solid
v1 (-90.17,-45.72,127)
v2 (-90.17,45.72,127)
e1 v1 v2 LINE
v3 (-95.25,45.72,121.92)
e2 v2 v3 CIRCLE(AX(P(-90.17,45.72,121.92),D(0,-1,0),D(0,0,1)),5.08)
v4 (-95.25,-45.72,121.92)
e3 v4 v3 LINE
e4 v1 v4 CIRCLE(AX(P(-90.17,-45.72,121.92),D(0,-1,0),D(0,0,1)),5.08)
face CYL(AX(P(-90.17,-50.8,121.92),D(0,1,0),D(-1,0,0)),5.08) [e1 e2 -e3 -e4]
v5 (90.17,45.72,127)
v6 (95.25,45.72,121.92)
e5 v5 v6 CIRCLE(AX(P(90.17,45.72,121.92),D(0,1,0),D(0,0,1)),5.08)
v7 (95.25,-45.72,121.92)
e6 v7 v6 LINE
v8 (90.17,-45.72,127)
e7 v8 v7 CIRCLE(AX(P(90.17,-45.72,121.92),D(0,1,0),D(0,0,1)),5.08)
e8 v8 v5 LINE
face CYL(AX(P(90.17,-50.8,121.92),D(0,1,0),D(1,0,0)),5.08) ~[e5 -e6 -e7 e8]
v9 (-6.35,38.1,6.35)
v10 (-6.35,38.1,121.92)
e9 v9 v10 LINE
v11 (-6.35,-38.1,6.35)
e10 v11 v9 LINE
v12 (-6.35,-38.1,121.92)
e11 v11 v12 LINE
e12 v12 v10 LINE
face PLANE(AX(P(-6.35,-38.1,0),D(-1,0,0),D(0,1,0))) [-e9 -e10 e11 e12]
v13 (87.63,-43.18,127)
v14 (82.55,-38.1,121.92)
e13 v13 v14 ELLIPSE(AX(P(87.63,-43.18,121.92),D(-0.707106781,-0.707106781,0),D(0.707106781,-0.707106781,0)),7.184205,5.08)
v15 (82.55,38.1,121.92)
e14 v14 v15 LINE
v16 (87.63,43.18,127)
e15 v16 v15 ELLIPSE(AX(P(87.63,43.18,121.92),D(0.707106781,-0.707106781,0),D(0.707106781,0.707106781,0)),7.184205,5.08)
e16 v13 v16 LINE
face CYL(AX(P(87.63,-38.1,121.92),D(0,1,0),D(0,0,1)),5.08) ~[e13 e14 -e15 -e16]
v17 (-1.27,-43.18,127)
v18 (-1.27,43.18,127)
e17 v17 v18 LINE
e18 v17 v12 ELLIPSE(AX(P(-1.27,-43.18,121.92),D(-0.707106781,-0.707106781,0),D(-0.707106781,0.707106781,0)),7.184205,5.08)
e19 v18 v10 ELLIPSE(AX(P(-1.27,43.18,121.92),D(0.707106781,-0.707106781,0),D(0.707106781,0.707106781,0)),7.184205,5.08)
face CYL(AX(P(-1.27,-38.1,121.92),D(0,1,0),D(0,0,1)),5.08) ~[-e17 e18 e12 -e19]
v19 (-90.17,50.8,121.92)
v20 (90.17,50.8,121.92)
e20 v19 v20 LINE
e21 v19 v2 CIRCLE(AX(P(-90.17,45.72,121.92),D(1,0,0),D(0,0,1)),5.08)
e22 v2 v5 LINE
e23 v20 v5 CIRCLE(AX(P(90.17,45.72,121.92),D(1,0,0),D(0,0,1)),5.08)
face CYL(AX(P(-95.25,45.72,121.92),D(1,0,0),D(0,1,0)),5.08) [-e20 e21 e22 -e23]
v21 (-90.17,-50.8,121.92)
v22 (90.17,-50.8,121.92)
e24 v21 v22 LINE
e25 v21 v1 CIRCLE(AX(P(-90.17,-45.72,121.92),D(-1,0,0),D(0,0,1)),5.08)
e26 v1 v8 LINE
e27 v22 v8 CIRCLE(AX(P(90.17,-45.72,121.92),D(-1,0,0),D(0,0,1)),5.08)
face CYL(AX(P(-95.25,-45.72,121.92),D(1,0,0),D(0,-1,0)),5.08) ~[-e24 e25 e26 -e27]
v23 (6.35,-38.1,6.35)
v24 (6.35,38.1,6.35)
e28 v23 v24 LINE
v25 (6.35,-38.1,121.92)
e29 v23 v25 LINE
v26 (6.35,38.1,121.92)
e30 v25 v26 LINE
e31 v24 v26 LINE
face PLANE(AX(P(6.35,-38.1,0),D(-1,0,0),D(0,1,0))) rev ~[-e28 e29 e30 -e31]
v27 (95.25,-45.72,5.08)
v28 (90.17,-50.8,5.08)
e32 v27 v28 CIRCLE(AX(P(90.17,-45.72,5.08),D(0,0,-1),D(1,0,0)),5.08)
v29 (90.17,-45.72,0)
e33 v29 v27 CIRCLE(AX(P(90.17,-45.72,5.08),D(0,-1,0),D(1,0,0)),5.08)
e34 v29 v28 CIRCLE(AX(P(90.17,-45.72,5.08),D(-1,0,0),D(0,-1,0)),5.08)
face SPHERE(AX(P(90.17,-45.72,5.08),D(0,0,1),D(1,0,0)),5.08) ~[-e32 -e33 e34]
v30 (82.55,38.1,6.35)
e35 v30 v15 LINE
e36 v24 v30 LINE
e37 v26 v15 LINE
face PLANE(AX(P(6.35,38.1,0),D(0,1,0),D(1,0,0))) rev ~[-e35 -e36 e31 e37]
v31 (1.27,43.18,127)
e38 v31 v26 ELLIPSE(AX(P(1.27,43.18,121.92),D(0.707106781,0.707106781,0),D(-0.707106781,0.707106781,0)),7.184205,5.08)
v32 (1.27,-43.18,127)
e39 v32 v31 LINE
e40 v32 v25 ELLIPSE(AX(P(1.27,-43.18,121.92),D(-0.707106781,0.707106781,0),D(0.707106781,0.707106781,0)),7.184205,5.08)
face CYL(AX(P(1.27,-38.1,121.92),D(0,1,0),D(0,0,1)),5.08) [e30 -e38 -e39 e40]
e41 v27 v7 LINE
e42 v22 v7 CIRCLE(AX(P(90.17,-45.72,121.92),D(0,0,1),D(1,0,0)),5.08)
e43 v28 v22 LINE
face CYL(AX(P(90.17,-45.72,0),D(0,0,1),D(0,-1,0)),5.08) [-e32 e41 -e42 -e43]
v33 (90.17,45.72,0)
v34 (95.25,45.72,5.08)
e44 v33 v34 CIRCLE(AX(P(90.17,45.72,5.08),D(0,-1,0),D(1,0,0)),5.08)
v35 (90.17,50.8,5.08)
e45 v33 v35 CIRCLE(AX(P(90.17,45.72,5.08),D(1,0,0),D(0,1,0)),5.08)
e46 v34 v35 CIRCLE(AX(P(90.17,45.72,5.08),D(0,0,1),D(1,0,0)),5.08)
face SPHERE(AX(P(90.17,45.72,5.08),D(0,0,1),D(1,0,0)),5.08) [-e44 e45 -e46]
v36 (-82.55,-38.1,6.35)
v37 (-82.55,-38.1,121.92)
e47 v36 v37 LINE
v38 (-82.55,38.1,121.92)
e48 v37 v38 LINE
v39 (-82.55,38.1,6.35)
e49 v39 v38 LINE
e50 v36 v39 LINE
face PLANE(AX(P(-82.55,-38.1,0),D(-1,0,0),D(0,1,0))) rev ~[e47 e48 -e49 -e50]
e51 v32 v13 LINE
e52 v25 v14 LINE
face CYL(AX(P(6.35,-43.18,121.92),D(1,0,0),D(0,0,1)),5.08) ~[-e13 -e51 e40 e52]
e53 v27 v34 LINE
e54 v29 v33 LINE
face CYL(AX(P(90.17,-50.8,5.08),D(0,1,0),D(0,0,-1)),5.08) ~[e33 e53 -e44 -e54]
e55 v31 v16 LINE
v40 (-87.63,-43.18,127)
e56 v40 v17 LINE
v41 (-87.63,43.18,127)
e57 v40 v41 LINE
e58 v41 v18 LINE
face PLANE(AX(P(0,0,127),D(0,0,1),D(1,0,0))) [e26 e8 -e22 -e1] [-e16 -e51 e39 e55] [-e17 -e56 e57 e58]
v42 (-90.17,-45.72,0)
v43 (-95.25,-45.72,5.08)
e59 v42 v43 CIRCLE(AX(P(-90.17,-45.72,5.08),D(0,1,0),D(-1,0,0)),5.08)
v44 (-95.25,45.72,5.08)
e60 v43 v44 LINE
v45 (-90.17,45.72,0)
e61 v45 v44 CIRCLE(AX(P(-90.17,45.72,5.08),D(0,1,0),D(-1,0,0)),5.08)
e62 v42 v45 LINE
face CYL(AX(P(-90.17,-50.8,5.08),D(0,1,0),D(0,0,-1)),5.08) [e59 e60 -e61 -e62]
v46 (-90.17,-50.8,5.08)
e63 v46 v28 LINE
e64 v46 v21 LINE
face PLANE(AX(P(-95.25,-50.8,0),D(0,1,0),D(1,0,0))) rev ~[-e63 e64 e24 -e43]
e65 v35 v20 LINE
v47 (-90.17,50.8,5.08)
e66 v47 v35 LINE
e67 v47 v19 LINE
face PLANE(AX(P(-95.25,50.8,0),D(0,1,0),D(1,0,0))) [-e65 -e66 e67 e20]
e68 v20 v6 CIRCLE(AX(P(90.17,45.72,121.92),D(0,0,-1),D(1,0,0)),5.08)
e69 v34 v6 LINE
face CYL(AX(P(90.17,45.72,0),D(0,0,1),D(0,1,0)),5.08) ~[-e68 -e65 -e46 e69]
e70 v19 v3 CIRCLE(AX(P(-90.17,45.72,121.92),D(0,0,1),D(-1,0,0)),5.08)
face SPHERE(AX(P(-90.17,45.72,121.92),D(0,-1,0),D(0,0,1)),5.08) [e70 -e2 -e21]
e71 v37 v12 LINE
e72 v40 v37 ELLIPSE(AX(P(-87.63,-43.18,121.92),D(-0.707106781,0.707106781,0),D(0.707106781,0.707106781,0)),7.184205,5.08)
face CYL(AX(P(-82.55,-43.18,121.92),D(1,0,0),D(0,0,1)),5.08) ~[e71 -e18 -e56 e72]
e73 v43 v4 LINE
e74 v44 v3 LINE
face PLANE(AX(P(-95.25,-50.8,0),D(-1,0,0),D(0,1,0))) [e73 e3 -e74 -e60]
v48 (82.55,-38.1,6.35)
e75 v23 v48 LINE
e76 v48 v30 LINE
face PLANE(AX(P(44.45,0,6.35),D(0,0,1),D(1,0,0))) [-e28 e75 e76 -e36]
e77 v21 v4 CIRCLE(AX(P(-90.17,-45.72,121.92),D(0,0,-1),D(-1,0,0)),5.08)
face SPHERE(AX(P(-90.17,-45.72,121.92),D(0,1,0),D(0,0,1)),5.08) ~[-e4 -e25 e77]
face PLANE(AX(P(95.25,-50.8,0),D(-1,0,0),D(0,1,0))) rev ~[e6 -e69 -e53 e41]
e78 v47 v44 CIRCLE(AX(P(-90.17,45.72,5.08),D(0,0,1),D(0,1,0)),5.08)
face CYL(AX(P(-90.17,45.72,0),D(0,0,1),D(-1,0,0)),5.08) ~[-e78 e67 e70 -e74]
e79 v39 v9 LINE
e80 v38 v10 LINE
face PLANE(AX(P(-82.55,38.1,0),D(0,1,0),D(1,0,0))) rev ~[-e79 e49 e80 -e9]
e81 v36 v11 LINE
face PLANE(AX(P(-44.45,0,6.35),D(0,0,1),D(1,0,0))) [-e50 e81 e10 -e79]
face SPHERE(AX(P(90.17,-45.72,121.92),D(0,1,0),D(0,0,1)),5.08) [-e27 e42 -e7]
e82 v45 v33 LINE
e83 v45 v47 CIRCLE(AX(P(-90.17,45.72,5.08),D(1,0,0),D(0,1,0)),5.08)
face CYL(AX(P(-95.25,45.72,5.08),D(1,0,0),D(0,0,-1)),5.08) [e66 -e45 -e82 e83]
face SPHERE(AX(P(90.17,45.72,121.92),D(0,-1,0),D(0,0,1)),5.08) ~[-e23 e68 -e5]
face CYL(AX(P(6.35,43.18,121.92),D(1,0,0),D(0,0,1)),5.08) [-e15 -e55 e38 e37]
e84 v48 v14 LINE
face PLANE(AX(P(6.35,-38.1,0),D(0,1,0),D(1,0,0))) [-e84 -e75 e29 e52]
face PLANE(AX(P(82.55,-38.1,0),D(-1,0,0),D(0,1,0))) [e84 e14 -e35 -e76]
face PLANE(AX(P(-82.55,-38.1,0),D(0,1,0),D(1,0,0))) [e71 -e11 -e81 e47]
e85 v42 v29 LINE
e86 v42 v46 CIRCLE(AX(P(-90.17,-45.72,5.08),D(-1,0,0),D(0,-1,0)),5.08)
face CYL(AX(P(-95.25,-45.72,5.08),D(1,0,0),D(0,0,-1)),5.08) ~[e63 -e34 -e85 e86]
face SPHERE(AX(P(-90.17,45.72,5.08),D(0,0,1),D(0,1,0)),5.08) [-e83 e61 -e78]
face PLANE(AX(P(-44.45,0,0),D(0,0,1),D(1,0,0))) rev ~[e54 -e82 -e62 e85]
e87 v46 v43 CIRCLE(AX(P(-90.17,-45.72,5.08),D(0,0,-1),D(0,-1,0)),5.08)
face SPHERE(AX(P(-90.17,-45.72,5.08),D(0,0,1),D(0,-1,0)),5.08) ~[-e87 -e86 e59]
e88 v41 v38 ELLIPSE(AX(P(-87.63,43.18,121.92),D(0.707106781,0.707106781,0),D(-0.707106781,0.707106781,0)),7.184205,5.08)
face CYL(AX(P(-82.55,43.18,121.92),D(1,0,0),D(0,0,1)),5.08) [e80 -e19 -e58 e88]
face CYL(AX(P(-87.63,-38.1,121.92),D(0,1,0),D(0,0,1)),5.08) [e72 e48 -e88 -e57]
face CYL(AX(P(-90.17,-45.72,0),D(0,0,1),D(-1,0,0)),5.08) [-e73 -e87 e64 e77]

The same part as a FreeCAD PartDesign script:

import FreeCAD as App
import Part
import Sketcher

V = App.Vector
Q = App.Units.Quantity


def edges_at(feature, points):
    """Names of the edges that pass closest to the given points."""
    edges = feature.Shape.Edges
    near = lambda p: min(range(len(edges)), key=lambda i: edges[i].distToShape(Part.Vertex(*p))[0])
    return sorted({f"Edge{near(p) + 1}" for p in points})

doc = App.newDocument("Part")
params = doc.addObject("Spreadsheet::Sheet", "Params")
for row, (alias, value) in enumerate([
    ("sketch1_width", "3 in"),
    ("sketch1_height", "4 in"),
    ("sketch1_width2", "7.5 in"),
    ("pad1_length", "5 in"),
    ("sketch2_width", "3 in"),
    ("pad2_length", "0.25 in"),
    ("fillet_radius", "0.2 in"),
], start=1):
    params.set(f"A{row}", alias)
    params.set(f"B{row}", "=" + value)
    params.setAlias(f"B{row}", alias)

body = doc.addObject("PartDesign::Body", "Body")

# Sketch on XY plane
sketch1 = body.newObject("Sketcher::SketchObject", "Sketch")
sketch1.AttachmentSupport = (doc.getObject("XY_Plane"), [""])
sketch1.MapMode = "FlatFace"
sketch1.addGeometry([
    Part.LineSegment(V(-95.25, 50.8, 0), V(-95.25, -50.8, 0)),  # 0
    Part.LineSegment(V(-95.25, -50.8, 0), V(95.25, -50.8, 0)),  # 1
    Part.LineSegment(V(95.25, -50.8, 0), V(95.25, 50.8, 0)),  # 2
    Part.LineSegment(V(95.25, 50.8, 0), V(-95.25, 50.8, 0)),  # 3
    Part.LineSegment(V(-6.35, -38.1, 0), V(-82.55, -38.1, 0)),  # 4
    Part.LineSegment(V(-82.55, -38.1, 0), V(-82.55, 38.1, 0)),  # 5
    Part.LineSegment(V(-82.55, 38.1, 0), V(-6.35, 38.1, 0)),  # 6
    Part.LineSegment(V(-6.35, 38.1, 0), V(-6.35, -38.1, 0)),  # 7
    Part.LineSegment(V(82.55, -38.1, 0), V(6.35, -38.1, 0)),  # 8
    Part.LineSegment(V(6.35, -38.1, 0), V(6.35, 38.1, 0)),  # 9
    Part.LineSegment(V(6.35, 38.1, 0), V(82.55, 38.1, 0)),  # 10
    Part.LineSegment(V(82.55, 38.1, 0), V(82.55, -38.1, 0)),  # 11
], False)
sketch1.addConstraint([
    Sketcher.Constraint("Coincident", 0, 2, 1, 1),
    Sketcher.Constraint("Coincident", 1, 2, 2, 1),
    Sketcher.Constraint("Coincident", 2, 2, 3, 1),
    Sketcher.Constraint("Coincident", 3, 2, 0, 1),
    Sketcher.Constraint("Coincident", 4, 2, 5, 1),
    Sketcher.Constraint("Coincident", 5, 2, 6, 1),
    Sketcher.Constraint("Coincident", 6, 2, 7, 1),
    Sketcher.Constraint("Coincident", 7, 2, 4, 1),
    Sketcher.Constraint("Coincident", 8, 2, 9, 1),
    Sketcher.Constraint("Coincident", 9, 2, 10, 1),
    Sketcher.Constraint("Coincident", 10, 2, 11, 1),
    Sketcher.Constraint("Coincident", 11, 2, 8, 1),
    Sketcher.Constraint("Vertical", 0),
    Sketcher.Constraint("Horizontal", 1),
    Sketcher.Constraint("Vertical", 2),
    Sketcher.Constraint("Horizontal", 3),
    Sketcher.Constraint("Horizontal", 4),
    Sketcher.Constraint("Vertical", 5),
    Sketcher.Constraint("Horizontal", 6),
    Sketcher.Constraint("Vertical", 7),
    Sketcher.Constraint("Horizontal", 8),
    Sketcher.Constraint("Vertical", 9),
    Sketcher.Constraint("Horizontal", 10),
    Sketcher.Constraint("Vertical", 11),
    Sketcher.Constraint("Symmetric", 0, 2, 2, 2, -1, 1),
    Sketcher.Constraint("Symmetric", 6, 2, 8, 2, -1, 1),
    Sketcher.Constraint("Symmetric", 4, 2, 10, 2, -1, 1),
    Sketcher.Constraint("Horizontal", 7, 2, 8, 2),
    Sketcher.Constraint("Equal", 10, 5),
    Sketcher.Constraint("DistanceX", 4, 2, 4, 1, Q("3 in")),
    Sketcher.Constraint("DistanceY", 0, 2, 0, 1, Q("4 in")),
    Sketcher.Constraint("DistanceX", 1, 1, 1, 2, Q("7.5 in")),
    Sketcher.Constraint("DistanceX", 4, 2, 1, 2, Q("7 in")),
])
sketch1.setExpression("Constraints[29]", "Params.sketch1_width")
sketch1.setExpression("Constraints[30]", "Params.sketch1_height")
sketch1.setExpression("Constraints[31]", "Params.sketch1_width2")
pad1 = body.newObject("PartDesign::Pad", "Pad")
pad1.Profile = sketch1
pad1.setExpression("Length", "Params.pad1_length")

# Sketch on XY plane
sketch2 = body.newObject("Sketcher::SketchObject", "Sketch001")
sketch2.AttachmentSupport = (doc.getObject("XY_Plane"), [""])
sketch2.MapMode = "FlatFace"
sketch2.addGeometry([
    Part.LineSegment(V(-82.55, 38.1, 0), V(-82.55, -38.1, 0)),  # 0
    Part.LineSegment(V(-82.55, -38.1, 0), V(-6.35, -38.1, 0)),  # 1
    Part.LineSegment(V(-6.35, -38.1, 0), V(-6.35, 38.1, 0)),  # 2
    Part.LineSegment(V(-6.35, 38.1, 0), V(-82.55, 38.1, 0)),  # 3
    Part.LineSegment(V(6.35, 38.1, 0), V(6.35, -38.1, 0)),  # 4
    Part.LineSegment(V(6.35, -38.1, 0), V(82.55, -38.1, 0)),  # 5
    Part.LineSegment(V(82.55, -38.1, 0), V(82.55, 38.1, 0)),  # 6
    Part.LineSegment(V(82.55, 38.1, 0), V(6.35, 38.1, 0)),  # 7
], False)
sketch2.addConstraint([
    Sketcher.Constraint("Coincident", 0, 2, 1, 1),
    Sketcher.Constraint("Coincident", 1, 2, 2, 1),
    Sketcher.Constraint("Coincident", 2, 2, 3, 1),
    Sketcher.Constraint("Coincident", 3, 2, 0, 1),
    Sketcher.Constraint("Coincident", 4, 2, 5, 1),
    Sketcher.Constraint("Coincident", 5, 2, 6, 1),
    Sketcher.Constraint("Coincident", 6, 2, 7, 1),
    Sketcher.Constraint("Coincident", 7, 2, 4, 1),
    Sketcher.Constraint("Vertical", 0),
    Sketcher.Constraint("Horizontal", 1),
    Sketcher.Constraint("Vertical", 2),
    Sketcher.Constraint("Horizontal", 3),
    Sketcher.Constraint("Vertical", 4),
    Sketcher.Constraint("Horizontal", 5),
    Sketcher.Constraint("Vertical", 6),
    Sketcher.Constraint("Horizontal", 7),
    Sketcher.Constraint("Symmetric", 2, 2, 4, 2, -1, 1),
    Sketcher.Constraint("Symmetric", 0, 2, 6, 2, -1, 1),
    Sketcher.Constraint("Horizontal", 1, 2, 4, 2),
    Sketcher.Constraint("Equal", 7, 0),
    Sketcher.Constraint("DistanceX", 1, 1, 1, 2, Q("3 in")),
    Sketcher.Constraint("DistanceX", 1, 2, 4, 2, Q("0.5 in")),
])
sketch2.setExpression("Constraints[20]", "Params.sketch2_width")
pad2 = body.newObject("PartDesign::Pad", "Pad001")
pad2.Profile = sketch2
pad2.setExpression("Length", "Params.pad2_length")
doc.recompute()

fillet = body.newObject("PartDesign::Fillet", "Fillet")
fillet.Base = (pad2, edges_at(pad2, [
    (-95.25, 0, 127),
    (-82.55, 0, 127),
    (-44.45, 38.1, 127),
    (-6.35, 0, 127),
    (-44.45, -38.1, 127),
    (6.35, 0, 127),
    (44.45, -38.1, 127),
    (44.45, 38.1, 127),
    (82.55, 0, 127),
    (95.25, 0, 127),
    (0, -50.8, 127),
    (0, 50.8, 127),
    (95.25, -50.8, 63.5),
    (95.25, 50.8, 63.5),
    (-95.25, -50.8, 63.5),
    (-95.25, 50.8, 63.5),
    (95.25, 0, 0),
    (0, -50.8, 0),
    (0, 50.8, 0),
    (-95.25, 0, 0),
]))
fillet.setExpression("Radius", "Params.fillet_radius")

doc.recompute()
